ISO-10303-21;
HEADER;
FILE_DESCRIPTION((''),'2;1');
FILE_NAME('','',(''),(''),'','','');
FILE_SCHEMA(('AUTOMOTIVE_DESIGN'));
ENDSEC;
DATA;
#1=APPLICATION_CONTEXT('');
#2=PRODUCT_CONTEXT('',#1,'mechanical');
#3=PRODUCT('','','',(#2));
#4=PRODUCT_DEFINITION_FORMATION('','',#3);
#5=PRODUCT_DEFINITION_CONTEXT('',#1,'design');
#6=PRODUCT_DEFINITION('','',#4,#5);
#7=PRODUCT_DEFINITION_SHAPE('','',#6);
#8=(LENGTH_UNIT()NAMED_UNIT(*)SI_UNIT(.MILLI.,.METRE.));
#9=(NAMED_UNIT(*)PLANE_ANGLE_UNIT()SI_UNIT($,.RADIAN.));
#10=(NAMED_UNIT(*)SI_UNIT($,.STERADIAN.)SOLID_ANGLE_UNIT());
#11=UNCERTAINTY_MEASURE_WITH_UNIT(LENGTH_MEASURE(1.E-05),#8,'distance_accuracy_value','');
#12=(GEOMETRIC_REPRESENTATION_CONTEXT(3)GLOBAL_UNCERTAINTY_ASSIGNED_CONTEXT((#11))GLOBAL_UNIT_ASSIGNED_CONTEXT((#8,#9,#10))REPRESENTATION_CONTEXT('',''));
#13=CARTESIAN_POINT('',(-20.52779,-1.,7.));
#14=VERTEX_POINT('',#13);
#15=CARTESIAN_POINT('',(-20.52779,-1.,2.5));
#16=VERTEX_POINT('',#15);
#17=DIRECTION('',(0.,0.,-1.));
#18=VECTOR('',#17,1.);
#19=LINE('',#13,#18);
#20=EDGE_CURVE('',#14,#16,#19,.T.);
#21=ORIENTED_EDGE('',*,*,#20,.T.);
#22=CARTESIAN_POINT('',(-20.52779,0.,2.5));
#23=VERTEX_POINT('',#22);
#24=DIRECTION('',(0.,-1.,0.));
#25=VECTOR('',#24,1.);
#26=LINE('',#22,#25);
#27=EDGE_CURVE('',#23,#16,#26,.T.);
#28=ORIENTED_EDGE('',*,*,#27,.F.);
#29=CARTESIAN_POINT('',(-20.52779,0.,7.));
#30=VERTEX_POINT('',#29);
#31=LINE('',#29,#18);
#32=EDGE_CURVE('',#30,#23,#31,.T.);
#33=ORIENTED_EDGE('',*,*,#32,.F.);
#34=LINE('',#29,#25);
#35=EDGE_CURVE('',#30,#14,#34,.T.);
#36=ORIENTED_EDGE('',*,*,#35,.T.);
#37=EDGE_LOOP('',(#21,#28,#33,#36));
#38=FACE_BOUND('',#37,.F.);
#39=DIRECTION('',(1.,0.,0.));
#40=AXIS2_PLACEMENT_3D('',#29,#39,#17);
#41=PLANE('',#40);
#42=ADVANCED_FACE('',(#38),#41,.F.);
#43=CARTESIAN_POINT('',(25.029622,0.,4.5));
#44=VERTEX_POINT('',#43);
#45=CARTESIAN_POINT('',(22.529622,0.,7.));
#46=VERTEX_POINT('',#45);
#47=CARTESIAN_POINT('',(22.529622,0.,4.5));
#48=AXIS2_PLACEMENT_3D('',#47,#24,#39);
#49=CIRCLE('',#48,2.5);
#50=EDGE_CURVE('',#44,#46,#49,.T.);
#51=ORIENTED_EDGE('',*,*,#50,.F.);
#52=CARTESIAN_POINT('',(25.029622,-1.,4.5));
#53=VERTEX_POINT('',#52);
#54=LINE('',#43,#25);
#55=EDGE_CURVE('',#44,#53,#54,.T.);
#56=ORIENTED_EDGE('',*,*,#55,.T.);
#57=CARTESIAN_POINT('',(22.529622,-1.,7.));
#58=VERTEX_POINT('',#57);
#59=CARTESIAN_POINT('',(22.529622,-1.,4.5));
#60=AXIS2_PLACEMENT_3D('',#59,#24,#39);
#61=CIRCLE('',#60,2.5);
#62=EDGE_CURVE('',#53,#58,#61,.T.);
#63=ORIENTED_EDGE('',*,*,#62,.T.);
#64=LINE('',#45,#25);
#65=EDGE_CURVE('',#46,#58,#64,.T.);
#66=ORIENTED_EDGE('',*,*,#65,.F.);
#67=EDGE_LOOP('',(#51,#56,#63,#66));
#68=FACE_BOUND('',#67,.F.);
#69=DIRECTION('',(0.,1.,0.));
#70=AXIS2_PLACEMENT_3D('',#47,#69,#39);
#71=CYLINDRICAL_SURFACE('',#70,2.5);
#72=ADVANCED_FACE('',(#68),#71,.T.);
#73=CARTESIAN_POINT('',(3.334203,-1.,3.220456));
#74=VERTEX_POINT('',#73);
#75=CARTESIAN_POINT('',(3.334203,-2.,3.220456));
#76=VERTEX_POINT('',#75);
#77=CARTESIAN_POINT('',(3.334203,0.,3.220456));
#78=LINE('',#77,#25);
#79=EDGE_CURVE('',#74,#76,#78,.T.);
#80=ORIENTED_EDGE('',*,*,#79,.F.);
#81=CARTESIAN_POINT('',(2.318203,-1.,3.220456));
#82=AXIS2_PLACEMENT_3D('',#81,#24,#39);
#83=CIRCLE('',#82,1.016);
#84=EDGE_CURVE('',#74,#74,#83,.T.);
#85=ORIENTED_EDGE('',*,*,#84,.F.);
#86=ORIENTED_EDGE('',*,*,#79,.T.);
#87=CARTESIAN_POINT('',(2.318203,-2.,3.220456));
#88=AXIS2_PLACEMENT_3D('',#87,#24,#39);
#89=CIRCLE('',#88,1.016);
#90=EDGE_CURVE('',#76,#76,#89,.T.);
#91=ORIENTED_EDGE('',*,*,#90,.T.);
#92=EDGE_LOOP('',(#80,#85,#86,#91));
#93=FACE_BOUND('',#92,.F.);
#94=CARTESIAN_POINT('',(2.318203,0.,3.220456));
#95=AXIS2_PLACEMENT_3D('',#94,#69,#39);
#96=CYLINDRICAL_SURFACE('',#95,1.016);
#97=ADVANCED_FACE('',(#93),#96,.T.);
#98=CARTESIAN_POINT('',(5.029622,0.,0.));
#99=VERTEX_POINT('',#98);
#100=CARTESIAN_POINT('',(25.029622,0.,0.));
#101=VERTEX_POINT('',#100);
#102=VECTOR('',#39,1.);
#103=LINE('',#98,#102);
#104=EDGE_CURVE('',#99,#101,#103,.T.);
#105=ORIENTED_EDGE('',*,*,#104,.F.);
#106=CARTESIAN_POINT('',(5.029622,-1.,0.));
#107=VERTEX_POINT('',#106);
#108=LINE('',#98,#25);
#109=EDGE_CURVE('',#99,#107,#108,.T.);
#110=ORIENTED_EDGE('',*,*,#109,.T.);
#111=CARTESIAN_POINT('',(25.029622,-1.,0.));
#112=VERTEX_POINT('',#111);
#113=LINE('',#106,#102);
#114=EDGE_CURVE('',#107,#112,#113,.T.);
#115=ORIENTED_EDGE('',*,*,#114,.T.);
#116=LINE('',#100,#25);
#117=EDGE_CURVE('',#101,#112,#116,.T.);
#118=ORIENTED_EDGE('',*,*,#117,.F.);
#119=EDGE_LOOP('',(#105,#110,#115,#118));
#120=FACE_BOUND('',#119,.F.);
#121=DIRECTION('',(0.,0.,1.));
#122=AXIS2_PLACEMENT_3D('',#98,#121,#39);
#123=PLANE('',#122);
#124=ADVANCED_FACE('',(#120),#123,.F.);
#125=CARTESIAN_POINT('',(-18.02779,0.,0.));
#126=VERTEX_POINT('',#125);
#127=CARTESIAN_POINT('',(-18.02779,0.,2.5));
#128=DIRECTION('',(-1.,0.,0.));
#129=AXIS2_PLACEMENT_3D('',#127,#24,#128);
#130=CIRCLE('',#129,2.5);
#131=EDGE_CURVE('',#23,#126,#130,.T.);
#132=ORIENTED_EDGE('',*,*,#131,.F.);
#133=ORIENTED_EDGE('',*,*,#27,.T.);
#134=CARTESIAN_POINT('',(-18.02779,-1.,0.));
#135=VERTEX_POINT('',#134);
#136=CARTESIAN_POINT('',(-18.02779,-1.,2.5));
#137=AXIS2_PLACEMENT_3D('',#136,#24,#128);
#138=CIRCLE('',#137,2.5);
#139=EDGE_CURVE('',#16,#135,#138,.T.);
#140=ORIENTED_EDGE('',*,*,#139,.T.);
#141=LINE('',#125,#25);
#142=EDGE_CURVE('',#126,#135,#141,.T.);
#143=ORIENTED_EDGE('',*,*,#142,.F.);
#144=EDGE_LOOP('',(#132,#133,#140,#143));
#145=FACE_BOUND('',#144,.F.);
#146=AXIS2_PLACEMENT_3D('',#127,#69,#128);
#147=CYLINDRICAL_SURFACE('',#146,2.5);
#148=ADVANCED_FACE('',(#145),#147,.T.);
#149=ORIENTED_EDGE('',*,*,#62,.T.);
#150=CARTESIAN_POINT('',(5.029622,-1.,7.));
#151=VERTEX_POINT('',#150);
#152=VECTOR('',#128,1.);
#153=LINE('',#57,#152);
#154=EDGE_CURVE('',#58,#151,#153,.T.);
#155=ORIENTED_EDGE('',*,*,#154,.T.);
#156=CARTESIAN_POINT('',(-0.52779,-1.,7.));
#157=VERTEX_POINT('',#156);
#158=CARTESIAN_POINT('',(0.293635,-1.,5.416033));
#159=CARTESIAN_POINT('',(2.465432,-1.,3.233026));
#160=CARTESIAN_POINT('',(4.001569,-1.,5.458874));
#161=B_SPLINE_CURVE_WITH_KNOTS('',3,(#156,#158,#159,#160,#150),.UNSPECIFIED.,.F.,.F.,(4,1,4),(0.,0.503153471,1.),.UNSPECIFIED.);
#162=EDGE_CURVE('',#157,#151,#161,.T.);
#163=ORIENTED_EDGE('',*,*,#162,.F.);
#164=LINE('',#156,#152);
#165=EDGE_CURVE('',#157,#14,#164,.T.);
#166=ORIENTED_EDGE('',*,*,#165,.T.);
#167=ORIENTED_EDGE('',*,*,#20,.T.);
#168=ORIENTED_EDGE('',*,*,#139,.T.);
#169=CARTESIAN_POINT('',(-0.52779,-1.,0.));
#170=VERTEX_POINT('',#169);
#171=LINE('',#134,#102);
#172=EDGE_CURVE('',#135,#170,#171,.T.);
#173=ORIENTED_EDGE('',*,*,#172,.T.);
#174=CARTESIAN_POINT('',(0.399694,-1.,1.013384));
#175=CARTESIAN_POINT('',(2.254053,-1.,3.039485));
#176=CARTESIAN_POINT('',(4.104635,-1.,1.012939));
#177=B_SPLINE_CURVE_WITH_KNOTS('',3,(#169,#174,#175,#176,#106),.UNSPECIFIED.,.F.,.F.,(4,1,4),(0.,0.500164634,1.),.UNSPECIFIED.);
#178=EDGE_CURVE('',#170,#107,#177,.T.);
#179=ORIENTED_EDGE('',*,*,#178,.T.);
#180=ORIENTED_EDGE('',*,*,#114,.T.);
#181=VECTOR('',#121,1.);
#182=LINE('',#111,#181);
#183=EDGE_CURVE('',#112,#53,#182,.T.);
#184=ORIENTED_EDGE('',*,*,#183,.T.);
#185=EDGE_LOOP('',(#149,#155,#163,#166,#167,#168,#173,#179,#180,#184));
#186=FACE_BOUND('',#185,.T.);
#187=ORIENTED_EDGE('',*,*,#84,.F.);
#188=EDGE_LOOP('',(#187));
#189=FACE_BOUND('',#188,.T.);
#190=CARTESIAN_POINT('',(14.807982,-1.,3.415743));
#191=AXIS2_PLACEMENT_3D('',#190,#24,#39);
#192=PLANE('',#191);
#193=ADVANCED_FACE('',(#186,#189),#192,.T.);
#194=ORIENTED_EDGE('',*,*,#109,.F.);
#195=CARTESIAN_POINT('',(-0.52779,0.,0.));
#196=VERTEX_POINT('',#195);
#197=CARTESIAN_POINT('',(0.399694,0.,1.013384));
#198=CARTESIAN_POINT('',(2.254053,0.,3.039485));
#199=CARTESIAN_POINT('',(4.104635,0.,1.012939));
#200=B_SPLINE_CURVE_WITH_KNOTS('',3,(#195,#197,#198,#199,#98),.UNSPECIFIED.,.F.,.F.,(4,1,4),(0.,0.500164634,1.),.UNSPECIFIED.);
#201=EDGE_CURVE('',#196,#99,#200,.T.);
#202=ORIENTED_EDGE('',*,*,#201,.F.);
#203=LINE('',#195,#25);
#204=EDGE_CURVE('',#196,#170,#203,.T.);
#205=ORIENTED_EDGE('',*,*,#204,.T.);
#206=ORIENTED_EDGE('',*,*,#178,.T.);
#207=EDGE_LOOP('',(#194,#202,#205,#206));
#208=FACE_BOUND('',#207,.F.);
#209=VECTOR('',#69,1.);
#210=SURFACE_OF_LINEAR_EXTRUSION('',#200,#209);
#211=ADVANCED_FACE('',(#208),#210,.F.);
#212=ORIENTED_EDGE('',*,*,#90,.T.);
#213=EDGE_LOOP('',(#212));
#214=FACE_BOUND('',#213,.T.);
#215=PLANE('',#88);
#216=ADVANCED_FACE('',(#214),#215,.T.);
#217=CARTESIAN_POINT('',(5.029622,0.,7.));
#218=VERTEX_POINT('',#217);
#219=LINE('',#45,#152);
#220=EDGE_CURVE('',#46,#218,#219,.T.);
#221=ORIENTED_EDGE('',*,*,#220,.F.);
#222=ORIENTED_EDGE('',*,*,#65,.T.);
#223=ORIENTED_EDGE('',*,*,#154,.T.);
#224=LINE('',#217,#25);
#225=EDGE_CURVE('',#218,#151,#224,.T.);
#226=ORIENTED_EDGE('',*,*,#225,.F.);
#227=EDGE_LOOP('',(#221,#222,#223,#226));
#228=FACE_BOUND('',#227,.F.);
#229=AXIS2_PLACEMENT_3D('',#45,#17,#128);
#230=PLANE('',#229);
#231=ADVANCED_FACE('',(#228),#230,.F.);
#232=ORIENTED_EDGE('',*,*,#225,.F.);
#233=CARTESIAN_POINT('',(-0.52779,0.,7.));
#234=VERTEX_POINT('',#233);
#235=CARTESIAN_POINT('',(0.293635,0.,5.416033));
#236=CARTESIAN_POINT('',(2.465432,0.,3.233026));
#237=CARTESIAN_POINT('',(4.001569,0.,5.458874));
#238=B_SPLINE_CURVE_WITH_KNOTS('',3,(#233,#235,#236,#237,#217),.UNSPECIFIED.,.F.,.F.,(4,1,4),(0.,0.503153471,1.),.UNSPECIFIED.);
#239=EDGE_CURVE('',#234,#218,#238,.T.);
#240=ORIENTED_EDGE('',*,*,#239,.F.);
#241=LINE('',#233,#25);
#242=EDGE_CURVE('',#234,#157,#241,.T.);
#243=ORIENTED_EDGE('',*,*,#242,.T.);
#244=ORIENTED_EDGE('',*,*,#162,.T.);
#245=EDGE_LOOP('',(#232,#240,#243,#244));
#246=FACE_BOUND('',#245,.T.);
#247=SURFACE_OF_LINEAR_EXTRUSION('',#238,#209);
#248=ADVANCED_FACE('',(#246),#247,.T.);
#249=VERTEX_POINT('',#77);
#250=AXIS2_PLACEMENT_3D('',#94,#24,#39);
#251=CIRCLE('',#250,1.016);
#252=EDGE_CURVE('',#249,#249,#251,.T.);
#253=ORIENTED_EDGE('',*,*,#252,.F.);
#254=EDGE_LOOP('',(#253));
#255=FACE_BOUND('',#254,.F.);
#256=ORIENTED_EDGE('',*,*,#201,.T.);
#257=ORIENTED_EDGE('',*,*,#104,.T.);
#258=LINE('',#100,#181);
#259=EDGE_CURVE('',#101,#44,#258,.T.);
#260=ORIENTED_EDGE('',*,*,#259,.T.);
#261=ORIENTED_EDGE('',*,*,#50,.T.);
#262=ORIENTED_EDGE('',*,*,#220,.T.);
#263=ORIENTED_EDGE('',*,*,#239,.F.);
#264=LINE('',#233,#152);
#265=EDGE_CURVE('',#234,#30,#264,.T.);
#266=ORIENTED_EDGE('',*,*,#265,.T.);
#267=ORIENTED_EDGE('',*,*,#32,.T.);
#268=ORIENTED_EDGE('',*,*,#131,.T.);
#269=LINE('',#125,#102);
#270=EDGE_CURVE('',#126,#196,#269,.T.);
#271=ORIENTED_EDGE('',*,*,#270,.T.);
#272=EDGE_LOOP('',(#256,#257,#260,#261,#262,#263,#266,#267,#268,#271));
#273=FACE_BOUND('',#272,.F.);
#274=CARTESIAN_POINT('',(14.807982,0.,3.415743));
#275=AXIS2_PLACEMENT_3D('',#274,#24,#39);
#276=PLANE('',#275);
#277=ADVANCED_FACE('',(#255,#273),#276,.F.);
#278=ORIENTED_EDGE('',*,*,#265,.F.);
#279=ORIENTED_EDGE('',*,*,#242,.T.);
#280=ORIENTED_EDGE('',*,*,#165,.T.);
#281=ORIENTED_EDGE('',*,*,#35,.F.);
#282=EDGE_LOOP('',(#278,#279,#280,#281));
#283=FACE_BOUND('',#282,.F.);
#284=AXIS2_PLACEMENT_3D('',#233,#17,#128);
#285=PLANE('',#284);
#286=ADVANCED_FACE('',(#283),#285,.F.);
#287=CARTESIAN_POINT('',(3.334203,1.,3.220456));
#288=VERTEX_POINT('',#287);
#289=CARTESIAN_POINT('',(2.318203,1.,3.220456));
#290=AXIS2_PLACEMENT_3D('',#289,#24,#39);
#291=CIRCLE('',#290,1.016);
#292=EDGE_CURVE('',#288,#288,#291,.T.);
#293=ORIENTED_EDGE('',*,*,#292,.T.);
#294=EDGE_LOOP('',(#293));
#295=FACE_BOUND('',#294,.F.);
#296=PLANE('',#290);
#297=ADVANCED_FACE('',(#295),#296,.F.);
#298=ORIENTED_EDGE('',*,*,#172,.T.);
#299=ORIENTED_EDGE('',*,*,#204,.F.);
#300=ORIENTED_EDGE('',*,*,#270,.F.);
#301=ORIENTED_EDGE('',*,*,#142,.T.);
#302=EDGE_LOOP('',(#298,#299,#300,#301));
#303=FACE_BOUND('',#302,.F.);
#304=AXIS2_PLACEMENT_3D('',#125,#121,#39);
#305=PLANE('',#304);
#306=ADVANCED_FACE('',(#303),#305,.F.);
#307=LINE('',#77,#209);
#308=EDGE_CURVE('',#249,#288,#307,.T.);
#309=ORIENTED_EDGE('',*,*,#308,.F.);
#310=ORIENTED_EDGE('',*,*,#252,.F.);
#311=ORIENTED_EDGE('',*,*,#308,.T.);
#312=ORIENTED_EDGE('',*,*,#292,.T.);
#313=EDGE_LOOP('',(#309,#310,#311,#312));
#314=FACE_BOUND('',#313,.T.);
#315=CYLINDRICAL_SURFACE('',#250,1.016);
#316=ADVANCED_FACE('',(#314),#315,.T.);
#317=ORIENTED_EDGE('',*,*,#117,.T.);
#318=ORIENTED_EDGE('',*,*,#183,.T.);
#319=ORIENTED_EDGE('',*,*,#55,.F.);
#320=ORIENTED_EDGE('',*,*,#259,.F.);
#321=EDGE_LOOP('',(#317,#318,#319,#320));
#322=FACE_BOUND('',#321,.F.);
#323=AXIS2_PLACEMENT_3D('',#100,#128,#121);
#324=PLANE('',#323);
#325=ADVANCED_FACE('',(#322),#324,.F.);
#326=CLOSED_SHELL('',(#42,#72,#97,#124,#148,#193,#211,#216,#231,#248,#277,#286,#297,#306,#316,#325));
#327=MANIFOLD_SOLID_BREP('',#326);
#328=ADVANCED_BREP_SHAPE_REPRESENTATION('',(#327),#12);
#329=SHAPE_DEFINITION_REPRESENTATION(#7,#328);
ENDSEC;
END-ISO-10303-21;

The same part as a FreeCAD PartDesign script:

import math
import FreeCAD as App
import Part
import Sketcher
from FreeCAD import Vector
Q = App.Units.Quantity

doc = App.newDocument("Part")
params = doc.addObject("Spreadsheet::Sheet", "Params")
for row, (alias, value) in enumerate([
    ("sketch1_radius", "2.5 mm"),
    ("sketch1_width", "20 mm"),
    ("pad1_length", "1 mm"),
    ("pad2_length", "2 mm"),
    ("pad3_length", "1 mm"),
], start=1):
    params.set(f"A{row}", alias)
    params.set(f"B{row}", "=" + value)
    params.setAlias(f"B{row}", alias)

body = doc.addObject("PartDesign::Body", "Body")

# Sketch on XZ plane
sketch1 = body.newObject("Sketcher::SketchObject", "Sketch")
sketch1.AttachmentSupport = (doc.getObject("XZ_Plane"), [""])
sketch1.MapMode = "FlatFace"
sketch1.addGeometry([
    Part.LineSegment(Vector(22.529622, 7, 0), Vector(5.029622, 7, 0)),  # 0
    Part.BSplineCurve([Vector(-0.52779, 7, 0), Vector(0.293635, 5.416033, 0), Vector(2.465432, 3.233026, 0), Vector(4.001569, 5.458874, 0), Vector(5.029622, 7, 0)], [4, 1, 4], [0, 0.503153471, 1], False, 3, [1, 1, 1, 1, 1], False),  # 1
    Part.LineSegment(Vector(-0.52779, 7, 0), Vector(-20.52779, 7, 0)),  # 2
    Part.LineSegment(Vector(-20.52779, 7, 0), Vector(-20.52779, 2.5, 0)),  # 3
    Part.ArcOfCircle(Part.Circle(Vector(-18.02779, 2.5, 0), Vector(0, 0, 1), 2.5), math.radians(180), math.radians(270)),  # 4
    Part.LineSegment(Vector(-18.02779, 0, 0), Vector(-0.52779, 0, 0)),  # 5
    Part.BSplineCurve([Vector(-0.52779, 0, 0), Vector(0.399694, 1.013384, 0), Vector(2.254053, 3.039485, 0), Vector(4.104635, 1.012939, 0), Vector(5.029622, 0, 0)], [4, 1, 4], [0, 0.500164634, 1], False, 3, [1, 1, 1, 1, 1], False),  # 6
    Part.LineSegment(Vector(5.029622, 0, 0), Vector(25.029622, 0, 0)),  # 7
    Part.LineSegment(Vector(25.029622, 0, 0), Vector(25.029622, 4.5, 0)),  # 8
    Part.ArcOfCircle(Part.Circle(Vector(22.529622, 4.5, 0), Vector(0, 0, 1), 2.5), math.radians(0), math.radians(90)),  # 9
    Part.Circle(Vector(2.318203, 3.220456, 0), Vector(0, 0, 1), 1.016),  # 10
], False)
sketch1.addConstraint([
    Sketcher.Constraint("Block", 1),
    Sketcher.Constraint("Block", 6),
    Sketcher.Constraint("Coincident", 0, 2, 1, 2),
    Sketcher.Constraint("Coincident", 1, 1, 2, 1),
    Sketcher.Constraint("Coincident", 2, 2, 3, 1),
    Sketcher.Constraint("Tangent", 3, 2, 4, 1),
    Sketcher.Constraint("Tangent", 4, 2, 5, 1),
    Sketcher.Constraint("Coincident", 5, 2, 6, 1),
    Sketcher.Constraint("Coincident", 6, 2, 7, 1),
    Sketcher.Constraint("Coincident", 7, 2, 8, 1),
    Sketcher.Constraint("Tangent", 8, 2, 9, 1),
    Sketcher.Constraint("Tangent", 9, 2, 0, 1),
    Sketcher.Constraint("Horizontal", 0),
    Sketcher.Constraint("Horizontal", 2),
    Sketcher.Constraint("Vertical", 3),
    Sketcher.Constraint("Horizontal", 5),
    Sketcher.Constraint("Horizontal", 7),
    Sketcher.Constraint("Vertical", 8),
    Sketcher.Constraint("Equal", 4, 9),
    Sketcher.Constraint("Equal", 0, 5),
    Sketcher.Constraint("Radius", 4, Q("2.5 mm")),
    Sketcher.Constraint("DistanceX", 2, 2, 2, 1, Q("20 mm")),
    Sketcher.Constraint("Diameter", 10, Q("2.032 mm")),
    Sketcher.Constraint("DistanceX", 10, 3, 9, 3, Q("20.211418 mm")),
    Sketcher.Constraint("DistanceY", -1, 1, 10, 3, Q("3.220456 mm")),
])
sketch1.setExpression("Constraints[20]", "Params.sketch1_radius")
sketch1.setExpression("Constraints[21]", "Params.sketch1_width")
pad1 = body.newObject("PartDesign::Pad", "Pad")
pad1.Profile = sketch1
pad1.setExpression("Length", "Params.pad1_length")

# Sketch on XZ plane
sketch2 = body.newObject("Sketcher::SketchObject", "Sketch001")
sketch2.AttachmentSupport = (doc.getObject("XZ_Plane"), [""])
sketch2.MapMode = "FlatFace"
sketch2.addGeometry(Part.Circle(Vector(2.3, 3.2, 0), Vector(0, 0, 1), 1), False)
sketch2.addConstraint([
    Sketcher.Constraint("Diameter", 0, Q("2.032 mm")),
    Sketcher.Constraint("DistanceX", -1, 1, 0, 3, Q("2.318203 mm")),
    Sketcher.Constraint("DistanceY", -1, 1, 0, 3, Q("3.220456 mm")),
])
pad2 = body.newObject("PartDesign::Pad", "Pad001")
pad2.Profile = sketch2
pad2.setExpression("Length", "Params.pad2_length")

# Sketch on XZ plane
sketch3 = body.newObject("Sketcher::SketchObject", "Sketch002")
sketch3.AttachmentSupport = (doc.getObject("XZ_Plane"), [""])
sketch3.MapMode = "FlatFace"
sketch3.addGeometry(Part.Circle(Vector(2.3, 3.2, 0), Vector(0, 0, 1), 1), False)
sketch3.addConstraint([
    Sketcher.Constraint("Diameter", 0, Q("2.032 mm")),
    Sketcher.Constraint("DistanceX", -1, 1, 0, 3, Q("2.318203 mm")),
    Sketcher.Constraint("DistanceY", -1, 1, 0, 3, Q("3.220456 mm")),
])
pad3 = body.newObject("PartDesign::Pad", "Pad002")
pad3.Profile = sketch3
pad3.setExpression("Length", "Params.pad3_length")
pad3.Reversed = True

doc.recompute()
